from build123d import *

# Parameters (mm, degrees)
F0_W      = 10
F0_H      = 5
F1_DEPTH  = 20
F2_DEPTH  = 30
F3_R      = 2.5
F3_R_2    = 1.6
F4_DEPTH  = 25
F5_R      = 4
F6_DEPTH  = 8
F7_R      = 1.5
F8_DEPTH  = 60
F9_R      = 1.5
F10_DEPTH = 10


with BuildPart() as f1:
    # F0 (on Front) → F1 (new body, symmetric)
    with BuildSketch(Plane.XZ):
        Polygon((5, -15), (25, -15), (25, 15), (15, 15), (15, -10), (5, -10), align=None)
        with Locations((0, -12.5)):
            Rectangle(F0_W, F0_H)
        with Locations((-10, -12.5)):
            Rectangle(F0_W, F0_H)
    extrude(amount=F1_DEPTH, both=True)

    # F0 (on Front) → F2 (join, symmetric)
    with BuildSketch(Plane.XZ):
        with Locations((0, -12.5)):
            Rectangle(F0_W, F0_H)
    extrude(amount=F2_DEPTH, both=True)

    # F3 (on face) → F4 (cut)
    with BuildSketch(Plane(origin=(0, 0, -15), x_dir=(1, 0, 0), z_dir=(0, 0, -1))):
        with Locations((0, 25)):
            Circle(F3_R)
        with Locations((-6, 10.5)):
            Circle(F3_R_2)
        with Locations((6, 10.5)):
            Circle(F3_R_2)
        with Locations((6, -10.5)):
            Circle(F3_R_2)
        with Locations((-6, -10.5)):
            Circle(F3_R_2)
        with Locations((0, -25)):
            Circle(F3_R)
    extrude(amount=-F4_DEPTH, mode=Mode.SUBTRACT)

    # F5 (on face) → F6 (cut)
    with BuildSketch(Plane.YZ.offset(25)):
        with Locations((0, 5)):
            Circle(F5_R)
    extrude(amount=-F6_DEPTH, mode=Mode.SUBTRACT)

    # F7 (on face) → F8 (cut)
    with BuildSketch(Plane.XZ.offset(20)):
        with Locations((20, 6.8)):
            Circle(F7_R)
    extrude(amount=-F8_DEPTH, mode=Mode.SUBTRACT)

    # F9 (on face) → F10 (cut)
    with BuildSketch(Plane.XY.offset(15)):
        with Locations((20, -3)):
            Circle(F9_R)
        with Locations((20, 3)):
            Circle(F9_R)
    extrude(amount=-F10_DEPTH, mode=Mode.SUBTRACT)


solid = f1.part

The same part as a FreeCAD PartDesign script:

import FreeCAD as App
import Part
import Sketcher

V = App.Vector
Q = App.Units.Quantity


def add_polygon(sketch, points):
    """Adds a closed chain of lines whose ends are joined by coincident constraints."""
    first, n = sketch.GeometryCount, len(points)
    for a, b in zip(points, points[1:] + points[:1]):
        sketch.addGeometry(Part.LineSegment(App.Vector(*a, 0), App.Vector(*b, 0)), False)
    for i in range(n):
        sketch.addConstraint(Sketcher.Constraint("Coincident", first + i, 2, first + (i + 1) % n, 1))

doc = App.newDocument("Part")
params = doc.addObject("Spreadsheet::Sheet", "Params")
for row, (alias, value) in enumerate([
    ("sketch1_width", "10 mm"),
    ("sketch1_width2", "30 mm"),
    ("sketch1_height", "25 mm"),
    ("pad1_length", "40 mm"),
    ("sketch2_width", "10 mm"),
    ("sketch2_height", "5 mm"),
    ("pad2_length", "60 mm"),
    ("sketch3_diameter", "5 mm"),
    ("sketch3_diameter2", "3.2 mm"),
    ("pocket1_length", "25 mm"),
    ("sketch4_diameter", "8 mm"),
    ("pocket2_length", "8 mm"),
    ("sketch5_diameter", "3 mm"),
    ("pocket3_length", "60 mm"),
    ("sketch6_diameter", "3 mm"),
    ("pocket4_length", "10 mm"),
], start=1):
    params.set(f"A{row}", alias)
    params.set(f"B{row}", "=" + value)
    params.setAlias(f"B{row}", alias)

body = doc.addObject("PartDesign::Body", "Body")

# Sketch on XZ plane
sketch1 = doc.addObject("Sketcher::SketchObject", "Sketch")
body.addObject(sketch1)
sketch1.AttachmentSupport = (doc.XZ_Plane, [""])
sketch1.MapMode = "FlatFace"
add_polygon(sketch1, [(25, -15), (25, 15), (15, 15), (15, -10), (-15, -10), (-15, -15)])  # lines 0-5
sketch1.addConstraint([
    Sketcher.Constraint("Vertical", 0),
    Sketcher.Constraint("Horizontal", 1),
    Sketcher.Constraint("Vertical", 2),
    Sketcher.Constraint("Horizontal", 3),
    Sketcher.Constraint("Vertical", 4),
    Sketcher.Constraint("Horizontal", 5),
    Sketcher.Constraint("Symmetric", 1, 2, 4, 2, -1, 1),
    Sketcher.Constraint("Equal", 3, 0),
    Sketcher.Constraint("DistanceX", 1, 2, 1, 1, Q("10 mm")),
    Sketcher.Constraint("DistanceX", 3, 2, 3, 1, Q("30 mm")),
    Sketcher.Constraint("DistanceY", 2, 2, 2, 1, Q("25 mm")),
])
sketch1.setExpression("Constraints[14]", "Params.sketch1_width")
sketch1.setExpression("Constraints[15]", "Params.sketch1_width2")
sketch1.setExpression("Constraints[16]", "Params.sketch1_height")
pad1 = doc.addObject("PartDesign::Pad", "Pad")
body.addObject(pad1)
pad1.Profile = sketch1
pad1.setExpression("Length", "Params.pad1_length")
pad1.Midplane = True

# Sketch on XZ plane
sketch2 = doc.addObject("Sketcher::SketchObject", "Sketch001")
body.addObject(sketch2)
sketch2.AttachmentSupport = (doc.XZ_Plane, [""])
sketch2.MapMode = "FlatFace"
add_polygon(sketch2, [(-5, -10), (-5, -15), (5, -15), (5, -10)])  # lines 0-3
sketch2.addConstraint([
    Sketcher.Constraint("Vertical", 0),
    Sketcher.Constraint("Horizontal", 1),
    Sketcher.Constraint("Vertical", 2),
    Sketcher.Constraint("Horizontal", 3),
    Sketcher.Constraint("DistanceX", 1, 1, 1, 2, Q("10 mm")),
    Sketcher.Constraint("DistanceY", 0, 2, 0, 1, Q("5 mm")),
    Sketcher.Constraint("DistanceX", 0, 2, -1, 1, Q("5 mm")),
    Sketcher.Constraint("DistanceY", 0, 2, -1, 1, Q("15 mm")),
])
sketch2.setExpression("Constraints[8]", "Params.sketch2_width")
sketch2.setExpression("Constraints[9]", "Params.sketch2_height")
pad2 = doc.addObject("PartDesign::Pad", "Pad001")
body.addObject(pad2)
pad2.Profile = sketch2
pad2.setExpression("Length", "Params.pad2_length")
pad2.Midplane = True

# Sketch on XY plane
sketch3 = doc.addObject("Sketcher::SketchObject", "Sketch002")
body.addObject(sketch3)
sketch3.AttachmentSupport = (doc.XY_Plane, [""])
sketch3.MapMode = "FlatFace"
sketch3.AttachmentOffset = App.Placement(V(0, 0, -15), App.Rotation())
sketch3.addGeometry([
    Part.Circle(V(0, -25, 0), V(0, 0, 1), 2.5),  # 0
    Part.Circle(V(-6, -10.5, 0), V(0, 0, 1), 1.6),  # 1
    Part.Circle(V(6, -10.5, 0), V(0, 0, 1), 1.6),  # 2
    Part.Circle(V(6, 10.5, 0), V(0, 0, 1), 1.6),  # 3
    Part.Circle(V(-6, 10.5, 0), V(0, 0, 1), 1.6),  # 4
    Part.Circle(V(0, 25, 0), V(0, 0, 1), 2.5),  # 5
], False)
sketch3.addConstraint([
    Sketcher.Constraint("Equal", 1, 2),
    Sketcher.Constraint("Equal", 2, 3),
    Sketcher.Constraint("Equal", 3, 4),
    Sketcher.Constraint("Equal", 0, 5),
    Sketcher.Constraint("Symmetric", 1, 3, 3, 3, -1, 1),
    Sketcher.Constraint("Symmetric", 2, 3, 4, 3, -1, 1),
    Sketcher.Constraint("Symmetric", 0, 3, 5, 3, -1, 1),
    Sketcher.Constraint("Symmetric", 1, 3, 2, 3, -2),
    Sketcher.Constraint("PointOnObject", 0, 3, -2),
    Sketcher.Constraint("Diameter", 0, Q("5 mm")),
    Sketcher.Constraint("Diameter", 1, Q("3.2 mm")),
    Sketcher.Constraint("DistanceY", 0, 3, -1, 1, Q("25 mm")),
    Sketcher.Constraint("DistanceX", 1, 3, -1, 1, Q("6 mm")),
    Sketcher.Constraint("DistanceY", 2, 3, 3, 3, Q("21 mm")),
])
sketch3.setExpression("Constraints[9]", "Params.sketch3_diameter")
sketch3.setExpression("Constraints[10]", "Params.sketch3_diameter2")
pocket1 = doc.addObject("PartDesign::Pocket", "Pocket")
body.addObject(pocket1)
pocket1.Profile = sketch3
pocket1.setExpression("Length", "Params.pocket1_length")
pocket1.Reversed = True

# Sketch on YZ plane
sketch4 = doc.addObject("Sketcher::SketchObject", "Sketch003")
body.addObject(sketch4)
sketch4.AttachmentSupport = (doc.YZ_Plane, [""])
sketch4.MapMode = "FlatFace"
sketch4.AttachmentOffset = App.Placement(V(0, 0, 25), App.Rotation())
sketch4.addGeometry(Part.Circle(V(0, 5, 0), V(0, 0, 1), 4), False)
sketch4.addConstraint([
    Sketcher.Constraint("PointOnObject", 0, 3, -2),
    Sketcher.Constraint("Diameter", 0, Q("8 mm")),
    Sketcher.Constraint("DistanceY", -1, 1, 0, 3, Q("5 mm")),
])
sketch4.setExpression("Constraints[1]", "Params.sketch4_diameter")
pocket2 = doc.addObject("PartDesign::Pocket", "Pocket001")
body.addObject(pocket2)
pocket2.Profile = sketch4
pocket2.setExpression("Length", "Params.pocket2_length")

# Sketch on XZ plane
sketch5 = doc.addObject("Sketcher::SketchObject", "Sketch004")
body.addObject(sketch5)
sketch5.AttachmentSupport = (doc.XZ_Plane, [""])
sketch5.MapMode = "FlatFace"
sketch5.AttachmentOffset = App.Placement(V(0, 0, 20), App.Rotation())
sketch5.addGeometry(Part.Circle(V(20, 6.8, 0), V(0, 0, 1), 1.5), False)
sketch5.addConstraint([
    Sketcher.Constraint("Diameter", 0, Q("3 mm")),
    Sketcher.Constraint("DistanceX", -1, 1, 0, 3, Q("20 mm")),
    Sketcher.Constraint("DistanceY", -1, 1, 0, 3, Q("6.8 mm")),
])
sketch5.setExpression("Constraints[0]", "Params.sketch5_diameter")
pocket3 = doc.addObject("PartDesign::Pocket", "Pocket002")
body.addObject(pocket3)
pocket3.Profile = sketch5
pocket3.setExpression("Length", "Params.pocket3_length")

# Sketch on XY plane
sketch6 = doc.addObject("Sketcher::SketchObject", "Sketch005")
body.addObject(sketch6)
sketch6.AttachmentSupport = (doc.XY_Plane, [""])
sketch6.MapMode = "FlatFace"
sketch6.AttachmentOffset = App.Placement(V(0, 0, 15), App.Rotation())
sketch6.addGeometry([
    Part.Circle(V(20, -3, 0), V(0, 0, 1), 1.5),
    Part.Circle(V(20, 3, 0), V(0, 0, 1), 1.5),
], False)
sketch6.addConstraint([
    Sketcher.Constraint("Equal", 0, 1),
    Sketcher.Constraint("Symmetric", 0, 3, 1, 3, -1),
    Sketcher.Constraint("Diameter", 0, Q("3 mm")),
    Sketcher.Constraint("DistanceX", -1, 1, 0, 3, Q("20 mm")),
    Sketcher.Constraint("DistanceY", 0, 3, -1, 1, Q("3 mm")),
])
sketch6.setExpression("Constraints[2]", "Params.sketch6_diameter")
pocket4 = doc.addObject("PartDesign::Pocket", "Pocket003")
body.addObject(pocket4)
pocket4.Profile = sketch6
pocket4.setExpression("Length", "Params.pocket4_length")

doc.recompute()
